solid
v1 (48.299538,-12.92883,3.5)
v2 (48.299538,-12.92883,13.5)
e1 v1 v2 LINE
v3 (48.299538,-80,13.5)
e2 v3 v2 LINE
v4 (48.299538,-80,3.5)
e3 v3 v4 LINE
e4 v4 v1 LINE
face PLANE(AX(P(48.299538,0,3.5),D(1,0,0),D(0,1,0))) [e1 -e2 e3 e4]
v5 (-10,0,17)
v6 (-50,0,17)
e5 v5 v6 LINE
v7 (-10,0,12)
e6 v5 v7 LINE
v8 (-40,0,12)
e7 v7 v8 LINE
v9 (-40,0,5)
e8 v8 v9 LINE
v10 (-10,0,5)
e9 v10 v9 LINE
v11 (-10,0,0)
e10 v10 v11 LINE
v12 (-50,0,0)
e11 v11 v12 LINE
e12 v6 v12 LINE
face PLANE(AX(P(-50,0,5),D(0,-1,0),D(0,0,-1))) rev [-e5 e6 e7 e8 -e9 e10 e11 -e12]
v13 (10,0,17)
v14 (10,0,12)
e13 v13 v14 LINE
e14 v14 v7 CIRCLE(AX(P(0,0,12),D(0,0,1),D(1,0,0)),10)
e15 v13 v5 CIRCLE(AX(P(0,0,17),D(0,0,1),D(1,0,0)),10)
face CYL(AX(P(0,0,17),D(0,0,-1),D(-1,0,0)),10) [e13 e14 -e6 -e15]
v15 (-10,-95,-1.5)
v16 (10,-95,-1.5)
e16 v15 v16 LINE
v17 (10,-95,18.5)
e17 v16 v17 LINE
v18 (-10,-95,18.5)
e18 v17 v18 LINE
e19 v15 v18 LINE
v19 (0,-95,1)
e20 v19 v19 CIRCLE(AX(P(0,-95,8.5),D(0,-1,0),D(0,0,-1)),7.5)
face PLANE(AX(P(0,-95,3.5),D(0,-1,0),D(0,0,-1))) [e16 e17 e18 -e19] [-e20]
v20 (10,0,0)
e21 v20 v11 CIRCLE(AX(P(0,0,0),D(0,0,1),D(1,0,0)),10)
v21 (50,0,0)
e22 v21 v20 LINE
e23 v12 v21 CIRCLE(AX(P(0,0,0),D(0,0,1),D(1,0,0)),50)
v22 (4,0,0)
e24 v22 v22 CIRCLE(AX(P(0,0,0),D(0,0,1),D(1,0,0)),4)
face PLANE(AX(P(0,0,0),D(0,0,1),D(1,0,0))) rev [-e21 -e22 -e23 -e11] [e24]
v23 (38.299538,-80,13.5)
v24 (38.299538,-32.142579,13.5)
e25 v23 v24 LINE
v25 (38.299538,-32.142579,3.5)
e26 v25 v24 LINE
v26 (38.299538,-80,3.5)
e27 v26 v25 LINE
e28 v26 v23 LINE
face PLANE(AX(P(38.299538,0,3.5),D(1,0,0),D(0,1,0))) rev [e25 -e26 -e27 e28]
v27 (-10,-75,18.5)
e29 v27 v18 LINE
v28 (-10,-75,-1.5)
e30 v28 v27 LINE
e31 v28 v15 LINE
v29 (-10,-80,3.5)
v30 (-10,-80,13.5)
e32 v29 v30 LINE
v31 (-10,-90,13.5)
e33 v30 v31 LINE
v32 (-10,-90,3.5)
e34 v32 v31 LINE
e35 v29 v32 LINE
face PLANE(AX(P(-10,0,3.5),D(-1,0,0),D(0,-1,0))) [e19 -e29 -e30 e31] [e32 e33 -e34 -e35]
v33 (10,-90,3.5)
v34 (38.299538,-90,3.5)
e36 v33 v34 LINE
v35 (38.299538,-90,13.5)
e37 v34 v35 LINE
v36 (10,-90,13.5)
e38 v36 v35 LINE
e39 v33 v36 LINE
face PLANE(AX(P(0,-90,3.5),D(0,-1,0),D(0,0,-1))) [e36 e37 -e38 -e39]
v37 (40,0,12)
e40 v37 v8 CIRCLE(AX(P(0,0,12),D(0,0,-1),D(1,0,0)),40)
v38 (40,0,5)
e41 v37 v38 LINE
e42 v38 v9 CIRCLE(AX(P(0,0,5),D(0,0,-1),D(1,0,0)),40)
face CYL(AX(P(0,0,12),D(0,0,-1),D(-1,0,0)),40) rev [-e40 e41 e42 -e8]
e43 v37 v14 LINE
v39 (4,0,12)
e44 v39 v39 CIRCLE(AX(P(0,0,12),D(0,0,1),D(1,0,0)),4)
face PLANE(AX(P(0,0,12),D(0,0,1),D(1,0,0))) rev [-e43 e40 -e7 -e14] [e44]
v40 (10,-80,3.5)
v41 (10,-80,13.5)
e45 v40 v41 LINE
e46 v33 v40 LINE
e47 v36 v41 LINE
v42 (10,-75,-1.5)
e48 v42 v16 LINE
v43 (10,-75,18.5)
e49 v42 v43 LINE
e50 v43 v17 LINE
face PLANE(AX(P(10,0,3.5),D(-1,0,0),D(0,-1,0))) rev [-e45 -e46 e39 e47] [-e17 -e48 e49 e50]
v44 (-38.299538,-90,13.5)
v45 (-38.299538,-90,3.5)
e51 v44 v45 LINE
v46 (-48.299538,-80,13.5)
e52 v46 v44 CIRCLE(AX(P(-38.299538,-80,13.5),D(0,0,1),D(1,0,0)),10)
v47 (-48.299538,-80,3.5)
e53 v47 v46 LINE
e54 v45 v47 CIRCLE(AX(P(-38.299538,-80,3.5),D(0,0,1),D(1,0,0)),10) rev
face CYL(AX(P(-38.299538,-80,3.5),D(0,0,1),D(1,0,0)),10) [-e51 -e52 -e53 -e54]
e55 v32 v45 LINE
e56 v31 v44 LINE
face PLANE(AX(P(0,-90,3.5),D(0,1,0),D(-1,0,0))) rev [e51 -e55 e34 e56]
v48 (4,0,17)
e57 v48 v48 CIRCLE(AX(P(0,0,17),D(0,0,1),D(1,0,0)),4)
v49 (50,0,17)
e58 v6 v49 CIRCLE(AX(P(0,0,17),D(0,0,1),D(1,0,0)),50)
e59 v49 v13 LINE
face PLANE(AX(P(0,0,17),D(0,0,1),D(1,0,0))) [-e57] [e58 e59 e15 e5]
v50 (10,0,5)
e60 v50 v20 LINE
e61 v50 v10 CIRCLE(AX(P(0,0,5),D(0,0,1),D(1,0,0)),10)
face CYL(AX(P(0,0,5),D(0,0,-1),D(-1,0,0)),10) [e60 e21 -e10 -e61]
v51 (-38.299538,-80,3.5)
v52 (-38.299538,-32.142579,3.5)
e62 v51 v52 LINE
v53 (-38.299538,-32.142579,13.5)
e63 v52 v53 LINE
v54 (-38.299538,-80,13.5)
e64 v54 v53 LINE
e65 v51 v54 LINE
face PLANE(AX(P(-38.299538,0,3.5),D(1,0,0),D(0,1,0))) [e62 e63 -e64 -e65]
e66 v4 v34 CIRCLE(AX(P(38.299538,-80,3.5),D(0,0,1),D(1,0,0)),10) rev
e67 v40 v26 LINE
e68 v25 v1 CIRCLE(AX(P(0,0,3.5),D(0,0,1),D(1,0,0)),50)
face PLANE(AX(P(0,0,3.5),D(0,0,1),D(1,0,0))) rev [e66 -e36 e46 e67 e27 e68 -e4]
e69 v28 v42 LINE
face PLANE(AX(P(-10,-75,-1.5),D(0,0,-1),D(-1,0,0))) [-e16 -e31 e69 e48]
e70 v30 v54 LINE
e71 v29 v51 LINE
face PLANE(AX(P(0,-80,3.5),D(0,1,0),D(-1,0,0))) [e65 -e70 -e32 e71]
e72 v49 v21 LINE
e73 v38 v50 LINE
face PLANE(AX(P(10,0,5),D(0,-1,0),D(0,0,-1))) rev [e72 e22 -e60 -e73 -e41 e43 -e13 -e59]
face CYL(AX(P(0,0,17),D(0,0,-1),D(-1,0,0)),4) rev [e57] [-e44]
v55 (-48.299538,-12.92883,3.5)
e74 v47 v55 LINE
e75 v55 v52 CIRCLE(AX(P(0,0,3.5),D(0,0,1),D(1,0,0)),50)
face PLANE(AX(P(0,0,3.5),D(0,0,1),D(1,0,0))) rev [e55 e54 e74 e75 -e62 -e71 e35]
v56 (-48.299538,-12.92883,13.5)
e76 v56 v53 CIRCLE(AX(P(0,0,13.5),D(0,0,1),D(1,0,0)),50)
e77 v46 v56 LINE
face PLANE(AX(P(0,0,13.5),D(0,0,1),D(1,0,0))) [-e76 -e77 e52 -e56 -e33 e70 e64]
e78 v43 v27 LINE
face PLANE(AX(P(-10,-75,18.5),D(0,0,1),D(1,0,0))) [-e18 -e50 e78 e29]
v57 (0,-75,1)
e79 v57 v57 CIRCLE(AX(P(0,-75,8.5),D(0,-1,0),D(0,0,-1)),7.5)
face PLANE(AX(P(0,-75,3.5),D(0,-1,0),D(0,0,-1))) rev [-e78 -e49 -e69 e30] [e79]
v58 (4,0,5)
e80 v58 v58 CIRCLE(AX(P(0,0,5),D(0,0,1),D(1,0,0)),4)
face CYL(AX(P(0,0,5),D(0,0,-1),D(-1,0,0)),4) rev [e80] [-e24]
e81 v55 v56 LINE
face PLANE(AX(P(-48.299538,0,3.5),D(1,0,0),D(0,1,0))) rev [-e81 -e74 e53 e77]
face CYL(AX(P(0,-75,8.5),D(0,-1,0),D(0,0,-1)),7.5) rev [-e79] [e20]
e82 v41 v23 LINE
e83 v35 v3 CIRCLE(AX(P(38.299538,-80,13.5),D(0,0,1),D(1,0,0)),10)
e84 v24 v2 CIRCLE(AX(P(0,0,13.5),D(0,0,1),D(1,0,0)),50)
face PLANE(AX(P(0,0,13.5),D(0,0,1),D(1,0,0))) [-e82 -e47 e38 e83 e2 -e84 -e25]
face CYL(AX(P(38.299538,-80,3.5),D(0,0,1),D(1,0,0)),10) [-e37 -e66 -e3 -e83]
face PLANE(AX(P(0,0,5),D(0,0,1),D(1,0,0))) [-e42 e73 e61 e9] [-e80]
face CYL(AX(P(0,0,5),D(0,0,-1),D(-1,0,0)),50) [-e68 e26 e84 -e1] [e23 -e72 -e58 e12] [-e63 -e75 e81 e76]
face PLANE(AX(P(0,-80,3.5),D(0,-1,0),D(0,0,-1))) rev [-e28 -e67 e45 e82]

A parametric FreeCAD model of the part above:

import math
import FreeCAD as App
import Part
import Sketcher

V = App.Vector


def edges_at(feature, points):
    """Names of the edges that pass closest to the given points."""
    edges = feature.Shape.Edges
    near = lambda p: min(range(len(edges)), key=lambda i: edges[i].distToShape(Part.Vertex(*p))[0])
    return sorted({f"Edge{near(p) + 1}" for p in points})

doc = App.newDocument("Part")
body = doc.addObject("PartDesign::Body", "Body")

sketch1 = body.newObject("Sketcher::SketchObject", "Sketch")
sketch1.AttachmentSupport = (doc.getObject("XY_Plane"), [""])
sketch1.MapMode = "FlatFace"
sketch1.addGeometry([
    Part.LineSegment(V(-10, 0, 0), V(-50, 0, 0)),
    Part.ArcOfCircle(Part.Circle(V(0, 0, 0), V(0, 0, 1), 50), math.radians(180), math.radians(360)),
    Part.LineSegment(V(50, 0, 0), V(10, 0, 0)),
    Part.ArcOfCircle(Part.Circle(V(0, 0, 0), V(0, 0, 1), 10), math.radians(0), math.radians(180)),
    Part.Circle(V(0, 0, 0), V(0, 0, 1), 4),
], False)
sketch1.addConstraint([
    Sketcher.Constraint("Coincident", 0, 2, 1, 1),
    Sketcher.Constraint("Coincident", 1, 2, 2, 1),
    Sketcher.Constraint("Coincident", 2, 2, 3, 1),
    Sketcher.Constraint("Coincident", 3, 2, 0, 1),
    Sketcher.Constraint("Horizontal", 0),
    Sketcher.Constraint("Horizontal", 2),
    Sketcher.Constraint("Coincident", 1, 3, -1, 1),
    Sketcher.Constraint("Coincident", 3, 3, -1, 1),
    Sketcher.Constraint("Coincident", 4, 3, -1, 1),
    Sketcher.Constraint("PointOnObject", 0, 2, -1),
    Sketcher.Constraint("PointOnObject", 1, 2, -1),
    Sketcher.Constraint("Diameter", 4, 8.0),
    Sketcher.Constraint("Radius", 1, 50.0),
    Sketcher.Constraint("Radius", 3, 10.0),
])
pad1 = body.newObject("PartDesign::Pad", "Pad")
pad1.Profile = sketch1
pad1.Length = 5

sketch2 = body.newObject("Sketcher::SketchObject", "Sketch001")
sketch2.AttachmentSupport = (doc.getObject("XY_Plane"), [""])
sketch2.MapMode = "FlatFace"
sketch2.AttachmentOffset = App.Placement(V(0, 0, 5), App.Rotation())
sketch2.addGeometry([
    Part.LineSegment(V(-40, 0, 0), V(-50, 0, 0)),
    Part.ArcOfCircle(Part.Circle(V(0, 0, 0), V(0, 0, 1), 50), math.radians(180), math.radians(360)),
    Part.LineSegment(V(50, 0, 0), V(40, 0, 0)),
    Part.ArcOfCircle(Part.Circle(V(0, 0, 0), V(0, 0, 1), 40), math.radians(180), math.radians(360)),
], False)
sketch2.addConstraint([
    Sketcher.Constraint("Coincident", 0, 2, 1, 1),
    Sketcher.Constraint("Coincident", 1, 2, 2, 1),
    Sketcher.Constraint("Coincident", 2, 2, 3, 2),
    Sketcher.Constraint("Coincident", 3, 1, 0, 1),
    Sketcher.Constraint("Horizontal", 0),
    Sketcher.Constraint("Horizontal", 2),
    Sketcher.Constraint("Coincident", 1, 3, -1, 1),
    Sketcher.Constraint("Coincident", 3, 3, -1, 1),
    Sketcher.Constraint("PointOnObject", 0, 2, -1),
    Sketcher.Constraint("PointOnObject", 1, 2, -1),
    Sketcher.Constraint("Radius", 1, 50.0),
    Sketcher.Constraint("Radius", 3, 40.0),
])
pad2 = body.newObject("PartDesign::Pad", "Pad001")
pad2.Profile = sketch2
pad2.Length = 7

sketch3 = body.newObject("Sketcher::SketchObject", "Sketch002")
sketch3.AttachmentSupport = (doc.getObject("XY_Plane"), [""])
sketch3.MapMode = "FlatFace"
sketch3.AttachmentOffset = App.Placement(V(0, 0, 12), App.Rotation())
sketch3.addGeometry([
    Part.LineSegment(V(-10, 0, 0), V(-50, 0, 0)),
    Part.ArcOfCircle(Part.Circle(V(0, 0, 0), V(0, 0, 1), 50), math.radians(180), math.radians(360)),
    Part.LineSegment(V(50, 0, 0), V(10, 0, 0)),
    Part.ArcOfCircle(Part.Circle(V(0, 0, 0), V(0, 0, 1), 10), math.radians(0), math.radians(180)),
    Part.Circle(V(0, 0, 0), V(0, 0, 1), 4),
], False)
sketch3.addConstraint([
    Sketcher.Constraint("Coincident", 0, 2, 1, 1),
    Sketcher.Constraint("Coincident", 1, 2, 2, 1),
    Sketcher.Constraint("Coincident", 2, 2, 3, 1),
    Sketcher.Constraint("Coincident", 3, 2, 0, 1),
    Sketcher.Constraint("Horizontal", 0),
    Sketcher.Constraint("Horizontal", 2),
    Sketcher.Constraint("Coincident", 1, 3, -1, 1),
    Sketcher.Constraint("Coincident", 3, 3, -1, 1),
    Sketcher.Constraint("Coincident", 4, 3, -1, 1),
    Sketcher.Constraint("PointOnObject", 0, 2, -1),
    Sketcher.Constraint("PointOnObject", 1, 2, -1),
    Sketcher.Constraint("Diameter", 4, 8.0),
    Sketcher.Constraint("Radius", 1, 50.0),
    Sketcher.Constraint("Radius", 3, 10.0),
])
pad3 = body.newObject("PartDesign::Pad", "Pad002")
pad3.Profile = sketch3
pad3.Length = 5

sketch4 = body.newObject("Sketcher::SketchObject", "Sketch003")
sketch4.AttachmentSupport = (doc.getObject("XY_Plane"), [""])
sketch4.MapMode = "FlatFace"
sketch4.AttachmentOffset = App.Placement(V(0, 0, 3.5), App.Rotation())
sketch4.addGeometry([
    Part.LineSegment(V(-10, -95, 0), V(10, -95, 0)),
    Part.LineSegment(V(10, -95, 0), V(10, -90, 0)),
    Part.LineSegment(V(10, -90, 0), V(48, -90, 0)),
    Part.LineSegment(V(48, -90, 0), V(48, -13, 0)),
    Part.ArcOfCircle(Part.Circle(V(0, 0, 0), V(0, 0, 1), 50), math.radians(-40), math.radians(-15)),
    Part.LineSegment(V(38, -32, 0), V(38, -80, 0)),
    Part.LineSegment(V(38, -80, 0), V(10, -80, 0)),
    Part.LineSegment(V(10, -80, 0), V(10, -75, 0)),
    Part.LineSegment(V(10, -75, 0), V(-10, -75, 0)),
    Part.LineSegment(V(-10, -75, 0), V(-10, -80, 0)),
    Part.LineSegment(V(-10, -80, 0), V(-38, -80, 0)),
    Part.LineSegment(V(-38, -80, 0), V(-38, -32, 0)),
    Part.ArcOfCircle(Part.Circle(V(0, 0, 0), V(0, 0, 1), 50), math.radians(-165), math.radians(-140)),
    Part.LineSegment(V(-48, -13, 0), V(-48, -90, 0)),
    Part.LineSegment(V(-48, -90, 0), V(-10, -90, 0)),
    Part.LineSegment(V(-10, -90, 0), V(-10, -95, 0)),
], False)
sketch4.addConstraint([
    Sketcher.Constraint("Coincident", 0, 2, 1, 1),
    Sketcher.Constraint("Coincident", 1, 2, 2, 1),
    Sketcher.Constraint("Coincident", 2, 2, 3, 1),
    Sketcher.Constraint("Coincident", 3, 2, 4, 2),
    Sketcher.Constraint("Coincident", 4, 1, 5, 1),
    Sketcher.Constraint("Coincident", 5, 2, 6, 1),
    Sketcher.Constraint("Coincident", 6, 2, 7, 1),
    Sketcher.Constraint("Coincident", 7, 2, 8, 1),
    Sketcher.Constraint("Coincident", 8, 2, 9, 1),
    Sketcher.Constraint("Coincident", 9, 2, 10, 1),
    Sketcher.Constraint("Coincident", 10, 2, 11, 1),
    Sketcher.Constraint("Coincident", 11, 2, 12, 2),
    Sketcher.Constraint("Coincident", 12, 1, 13, 1),
    Sketcher.Constraint("Coincident", 13, 2, 14, 1),
    Sketcher.Constraint("Coincident", 14, 2, 15, 1),
    Sketcher.Constraint("Coincident", 15, 2, 0, 1),
    Sketcher.Constraint("Horizontal", 0),
    Sketcher.Constraint("Vertical", 1),
    Sketcher.Constraint("Horizontal", 2),
    Sketcher.Constraint("Vertical", 3),
    Sketcher.Constraint("Vertical", 5),
    Sketcher.Constraint("Horizontal", 6),
    Sketcher.Constraint("Vertical", 7),
    Sketcher.Constraint("Horizontal", 8),
    Sketcher.Constraint("Vertical", 9),
    Sketcher.Constraint("Horizontal", 10),
    Sketcher.Constraint("Vertical", 11),
    Sketcher.Constraint("Vertical", 13),
    Sketcher.Constraint("Horizontal", 14),
    Sketcher.Constraint("Vertical", 15),
    Sketcher.Constraint("Coincident", 4, 3, -1, 1),
    Sketcher.Constraint("Coincident", 12, 3, -1, 1),
    Sketcher.Constraint("Equal", 4, 12),
    Sketcher.Constraint("Symmetric", 6, 2, 9, 2, -2),
    Sketcher.Constraint("Symmetric", 2, 2, 13, 2, -2),
    Sketcher.Constraint("Horizontal", 4, 1, 11, 2),
    Sketcher.Constraint("Vertical", 1, 2, 6, 2),
    Sketcher.Constraint("Vertical", 9, 2, 14, 2),
    Sketcher.Constraint("Equal", 1, 7),
    Sketcher.Constraint("Radius", 4, 50.0),
    Sketcher.Constraint("DistanceX", 0, 1, 0, 2, 20.0),
    Sketcher.Constraint("DistanceY", 1, 1, 1, 2, 5.0),
    Sketcher.Constraint("DistanceY", 0, 2, -1, 1, 95.0),
    Sketcher.Constraint("DistanceY", 5, 2, -1, 1, 80.0),
    Sketcher.Constraint("DistanceX", 4, 1, 3, 2, 10.0),
    Sketcher.Constraint("DistanceY", 3, 1, 3, 2, 77.07117),
])
pad4 = body.newObject("PartDesign::Pad", "Pad003")
pad4.Profile = sketch4
pad4.Length = 10
doc.recompute()

fillet = body.newObject("PartDesign::Fillet", "Fillet")
fillet.Base = (pad4, edges_at(pad4, [(48.3, -90, 8.5), (-48.3, -90, 8.5)]))
fillet.Radius = 10

sketch5 = body.newObject("Sketcher::SketchObject", "Sketch004")
sketch5.AttachmentSupport = (doc.getObject("XZ_Plane"), [""])
sketch5.MapMode = "FlatFace"
sketch5.AttachmentOffset = App.Placement(V(0, 0, 95), App.Rotation())
sketch5.addGeometry([
    Part.LineSegment(V(-10, 18, 0), V(-10, -2, 0)),
    Part.LineSegment(V(-10, -2, 0), V(10, -2, 0)),
    Part.LineSegment(V(10, -2, 0), V(10, 18, 0)),
    Part.LineSegment(V(10, 18, 0), V(-10, 18, 0)),
], False)
sketch5.addConstraint([
    Sketcher.Constraint("Coincident", 0, 2, 1, 1),
    Sketcher.Constraint("Coincident", 1, 2, 2, 1),
    Sketcher.Constraint("Coincident", 2, 2, 3, 1),
    Sketcher.Constraint("Coincident", 3, 2, 0, 1),
    Sketcher.Constraint("Vertical", 0),
    Sketcher.Constraint("Horizontal", 1),
    Sketcher.Constraint("Vertical", 2),
    Sketcher.Constraint("Horizontal", 3),
    Sketcher.Constraint("Equal", 3, 0),
    Sketcher.Constraint("DistanceX", 1, 1, 1, 2, 20.0),
    Sketcher.Constraint("DistanceX", 0, 2, -1, 1, 10.0),
    Sketcher.Constraint("DistanceY", 0, 2, -1, 1, 1.5),
])
pad5 = body.newObject("PartDesign::Pad", "Pad004")
pad5.Profile = sketch5
pad5.Length = 20
pad5.Reversed = True

sketch6 = body.newObject("Sketcher::SketchObject", "Sketch005")
sketch6.AttachmentSupport = (doc.getObject("XZ_Plane"), [""])
sketch6.MapMode = "FlatFace"
sketch6.AttachmentOffset = App.Placement(V(0, 0, 95), App.Rotation())
sketch6.addGeometry(Part.Circle(V(0, 8, 0), V(0, 0, 1), 8), False)
sketch6.addConstraint([
    Sketcher.Constraint("PointOnObject", 0, 3, -2),
    Sketcher.Constraint("Diameter", 0, 15.0),
    Sketcher.Constraint("DistanceY", -1, 1, 0, 3, 8.5),
])
pocket1 = body.newObject("PartDesign::Pocket", "Pocket")
pocket1.Profile = sketch6
pocket1.Length = 20

doc.recompute()
